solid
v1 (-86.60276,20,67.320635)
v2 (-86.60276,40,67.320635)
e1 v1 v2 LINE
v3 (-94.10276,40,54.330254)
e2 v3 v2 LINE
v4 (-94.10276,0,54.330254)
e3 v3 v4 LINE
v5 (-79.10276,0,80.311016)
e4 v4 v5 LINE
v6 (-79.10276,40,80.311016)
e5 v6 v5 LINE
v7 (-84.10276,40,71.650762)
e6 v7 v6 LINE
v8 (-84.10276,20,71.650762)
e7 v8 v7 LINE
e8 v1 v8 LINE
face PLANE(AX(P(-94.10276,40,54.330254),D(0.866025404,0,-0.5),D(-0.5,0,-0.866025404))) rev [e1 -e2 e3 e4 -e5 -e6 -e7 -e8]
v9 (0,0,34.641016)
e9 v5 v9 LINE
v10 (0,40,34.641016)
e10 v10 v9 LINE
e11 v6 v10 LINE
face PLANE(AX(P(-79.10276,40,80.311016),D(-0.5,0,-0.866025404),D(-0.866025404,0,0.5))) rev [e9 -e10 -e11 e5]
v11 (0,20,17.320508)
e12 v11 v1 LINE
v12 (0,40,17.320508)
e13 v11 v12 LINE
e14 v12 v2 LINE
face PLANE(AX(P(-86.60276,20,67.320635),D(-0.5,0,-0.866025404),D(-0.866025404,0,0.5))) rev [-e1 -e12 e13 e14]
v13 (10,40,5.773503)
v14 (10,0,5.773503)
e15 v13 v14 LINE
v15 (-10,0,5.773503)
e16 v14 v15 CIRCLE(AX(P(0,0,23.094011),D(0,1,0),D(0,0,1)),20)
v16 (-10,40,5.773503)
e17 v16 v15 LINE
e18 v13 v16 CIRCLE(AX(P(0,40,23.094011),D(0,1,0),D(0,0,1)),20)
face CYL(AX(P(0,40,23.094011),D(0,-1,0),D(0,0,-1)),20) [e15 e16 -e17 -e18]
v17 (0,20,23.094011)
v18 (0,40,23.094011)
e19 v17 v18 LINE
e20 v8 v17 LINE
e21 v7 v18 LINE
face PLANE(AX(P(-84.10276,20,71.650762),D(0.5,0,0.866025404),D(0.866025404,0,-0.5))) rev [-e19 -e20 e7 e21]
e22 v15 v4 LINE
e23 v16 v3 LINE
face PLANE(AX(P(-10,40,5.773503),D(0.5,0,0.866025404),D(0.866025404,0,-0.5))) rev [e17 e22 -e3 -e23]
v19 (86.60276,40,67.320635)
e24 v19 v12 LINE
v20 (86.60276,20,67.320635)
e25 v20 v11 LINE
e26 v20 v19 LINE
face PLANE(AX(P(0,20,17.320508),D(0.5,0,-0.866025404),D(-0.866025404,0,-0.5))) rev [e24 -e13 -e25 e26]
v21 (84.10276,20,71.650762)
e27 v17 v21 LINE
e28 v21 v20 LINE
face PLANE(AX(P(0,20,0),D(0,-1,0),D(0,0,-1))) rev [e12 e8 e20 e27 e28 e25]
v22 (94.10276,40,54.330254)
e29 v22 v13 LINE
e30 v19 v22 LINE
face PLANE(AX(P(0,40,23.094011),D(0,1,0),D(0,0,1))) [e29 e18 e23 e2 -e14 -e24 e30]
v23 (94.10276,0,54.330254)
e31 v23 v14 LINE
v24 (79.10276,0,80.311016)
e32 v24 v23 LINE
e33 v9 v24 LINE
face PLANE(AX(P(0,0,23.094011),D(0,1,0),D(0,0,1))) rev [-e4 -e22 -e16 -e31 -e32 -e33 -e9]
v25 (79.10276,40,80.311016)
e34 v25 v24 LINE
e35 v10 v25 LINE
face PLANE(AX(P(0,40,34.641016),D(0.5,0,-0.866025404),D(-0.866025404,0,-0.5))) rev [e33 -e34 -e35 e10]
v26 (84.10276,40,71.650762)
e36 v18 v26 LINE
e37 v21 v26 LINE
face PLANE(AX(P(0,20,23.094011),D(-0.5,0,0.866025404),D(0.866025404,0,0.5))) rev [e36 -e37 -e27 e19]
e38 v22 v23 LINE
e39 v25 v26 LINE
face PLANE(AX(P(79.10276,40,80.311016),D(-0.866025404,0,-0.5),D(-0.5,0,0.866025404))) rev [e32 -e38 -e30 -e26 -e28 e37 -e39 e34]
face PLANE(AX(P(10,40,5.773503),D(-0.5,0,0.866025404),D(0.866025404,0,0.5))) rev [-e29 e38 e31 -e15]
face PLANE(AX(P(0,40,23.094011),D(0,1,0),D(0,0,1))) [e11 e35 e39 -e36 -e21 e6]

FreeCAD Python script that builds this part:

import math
import FreeCAD as App
import Part
import Sketcher

V = App.Vector
Q = App.Units.Quantity

doc = App.newDocument("Part")
body = doc.addObject("PartDesign::Body", "Body")

sketch1 = doc.addObject("Sketcher::SketchObject", "Sketch")
body.addObject(sketch1)
sketch1.AttachmentSupport = (doc.XZ_Plane, [""])
sketch1.MapMode = "FlatFace"
sketch1.addGeometry([
    Part.LineSegment(V(94.10276, 54.330254, 0), V(10, 5.773503, 0)),
    Part.ArcOfCircle(Part.Circle(V(0, 23.094011, 0), V(0, 0, 1), 20), math.radians(-120), math.radians(-60)),
    Part.LineSegment(V(-10, 5.773503, 0), V(-94.10276, 54.330254, 0)),
    Part.LineSegment(V(-94.10276, 54.330254, 0), V(-79.10276, 80.311016, 0)),
    Part.LineSegment(V(-79.10276, 80.311016, 0), V(0, 34.641016, 0)),
    Part.LineSegment(V(0, 34.641016, 0), V(79.10276, 80.311016, 0)),
    Part.LineSegment(V(79.10276, 80.311016, 0), V(94.10276, 54.330254, 0)),
], False)
sketch1.addConstraint([
    Sketcher.Constraint("Tangent", 0, 2, 1, 2),
    Sketcher.Constraint("Tangent", 1, 1, 2, 1),
    Sketcher.Constraint("Coincident", 2, 2, 3, 1),
    Sketcher.Constraint("Coincident", 3, 2, 4, 1),
    Sketcher.Constraint("Coincident", 4, 2, 5, 1),
    Sketcher.Constraint("Coincident", 5, 2, 6, 1),
    Sketcher.Constraint("Coincident", 6, 2, 0, 1),
    Sketcher.Constraint("Symmetric", 0, 2, 1, 1, -2),
    Sketcher.Constraint("Symmetric", 3, 2, 5, 2, -2),
    Sketcher.Constraint("PointOnObject", 4, 2, -2),
    Sketcher.Constraint("Perpendicular", 2, 3),
    Sketcher.Constraint("Perpendicular", 3, 4),
    Sketcher.Constraint("Perpendicular", 5, 6),
    Sketcher.Constraint("Radius", 1, 20.0),
    Sketcher.Constraint("Angle", 0, Q("-150 deg")),
    Sketcher.Constraint("Distance", 3, 30.0),
    Sketcher.Constraint("Distance", 4, 91.34),
    Sketcher.Constraint("DistanceY", -1, 1, 1, 3, 23.094011),
])
pad1 = doc.addObject("PartDesign::Pad", "Pad")
body.addObject(pad1)
pad1.Profile = sketch1
pad1.Length = 40
pad1.Reversed = True

sketch2 = doc.addObject("Sketcher::SketchObject", "Sketch001")
body.addObject(sketch2)
sketch2.AttachmentSupport = (doc.XZ_Plane, [""])
sketch2.MapMode = "FlatFace"
sketch2.AttachmentOffset = App.Placement(V(0, 0, -40), App.Rotation())
sketch2.addGeometry([
    Part.LineSegment(V(0, 17.320508, 0), V(-86.60276, 67.320635, 0)),
    Part.LineSegment(V(-86.60276, 67.320635, 0), V(-84.10276, 71.650762, 0)),
    Part.LineSegment(V(-84.10276, 71.650762, 0), V(0, 23.094011, 0)),
    Part.LineSegment(V(0, 23.094011, 0), V(84.10276, 71.650762, 0)),
    Part.LineSegment(V(84.10276, 71.650762, 0), V(86.60276, 67.320635, 0)),
    Part.LineSegment(V(86.60276, 67.320635, 0), V(0, 17.320508, 0)),
], False)
sketch2.addConstraint([
    Sketcher.Constraint("Coincident", 0, 2, 1, 1),
    Sketcher.Constraint("Coincident", 1, 2, 2, 1),
    Sketcher.Constraint("Coincident", 2, 2, 3, 1),
    Sketcher.Constraint("Coincident", 3, 2, 4, 1),
    Sketcher.Constraint("Coincident", 4, 2, 5, 1),
    Sketcher.Constraint("Coincident", 5, 2, 0, 1),
    Sketcher.Constraint("Symmetric", 1, 2, 3, 2, -2),
    Sketcher.Constraint("Symmetric", 0, 2, 4, 2, -2),
    Sketcher.Constraint("PointOnObject", 2, 2, -2),
    Sketcher.Constraint("PointOnObject", 5, 2, -2),
    Sketcher.Constraint("Perpendicular", 0, 1),
    Sketcher.Constraint("Perpendicular", 1, 2),
    Sketcher.Constraint("Angle", 0, Q("150 deg")),
    Sketcher.Constraint("Distance", 1, 5.0),
    Sketcher.Constraint("DistanceX", 0, 2, -1, 1, 86.60276),
    Sketcher.Constraint("DistanceY", -1, 1, 2, 2, 23.094011),
])
pocket1 = doc.addObject("PartDesign::Pocket", "Pocket")
body.addObject(pocket1)
pocket1.Profile = sketch2
pocket1.Length = 20
pocket1.Reversed = True

doc.recompute()
